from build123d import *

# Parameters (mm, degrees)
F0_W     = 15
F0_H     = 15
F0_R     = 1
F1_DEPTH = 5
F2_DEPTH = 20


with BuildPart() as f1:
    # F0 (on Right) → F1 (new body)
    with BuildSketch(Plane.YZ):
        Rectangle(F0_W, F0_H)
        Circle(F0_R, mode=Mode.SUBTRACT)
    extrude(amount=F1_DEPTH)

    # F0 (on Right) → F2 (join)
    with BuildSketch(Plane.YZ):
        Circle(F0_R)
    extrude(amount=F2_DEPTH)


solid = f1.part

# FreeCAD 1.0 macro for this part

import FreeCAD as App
import Part
import Sketcher
Q = App.Units.Quantity

doc = App.newDocument("Part")
body = doc.addObject("PartDesign::Body", "Body")

sketch1 = body.newObject("Sketcher::SketchObject", "Sketch")
sketch1.AttachmentSupport = (doc.getObject("YZ_Plane"), [""])
sketch1.MapMode = "FlatFace"
sketch1.addGeometry([
    Part.LineSegment(App.Vector(-7.5, 7.5, 0), App.Vector(-7.5, -7.5, 0)),
    Part.LineSegment(App.Vector(-7.5, -7.5, 0), App.Vector(7.5, -7.5, 0)),
    Part.LineSegment(App.Vector(7.5, -7.5, 0), App.Vector(7.5, 7.5, 0)),
    Part.LineSegment(App.Vector(7.5, 7.5, 0), App.Vector(-7.5, 7.5, 0)),
    Part.Circle(App.Vector(0, 0, 0), App.Vector(0, 0, 1), 1),
], False)
sketch1.addConstraint([
    Sketcher.Constraint("Coincident", 0, 2, 1, 1),
    Sketcher.Constraint("Coincident", 1, 2, 2, 1),
    Sketcher.Constraint("Coincident", 2, 2, 3, 1),
    Sketcher.Constraint("Coincident", 3, 2, 0, 1),
    Sketcher.Constraint("Vertical", 0),
    Sketcher.Constraint("Horizontal", 1),
    Sketcher.Constraint("Vertical", 2),
    Sketcher.Constraint("Horizontal", 3),
    Sketcher.Constraint("Coincident", 4, 3, -1, 1),
    Sketcher.Constraint("Symmetric", 0, 2, 2, 2, -1, 1),
    Sketcher.Constraint("Equal", 3, 0),
    Sketcher.Constraint("Diameter", 4, Q("2 mm")),
    Sketcher.Constraint("DistanceX", 1, 1, 1, 2, Q("15 mm")),
])
pad1 = body.newObject("PartDesign::Pad", "Pad")
pad1.Profile = sketch1
pad1.Length = 5

sketch2 = body.newObject("Sketcher::SketchObject", "Sketch001")
sketch2.AttachmentSupport = (doc.getObject("YZ_Plane"), [""])
sketch2.MapMode = "FlatFace"
sketch2.addGeometry(Part.Circle(App.Vector(0, 0, 0), App.Vector(0, 0, 1), 1), False)
sketch2.addConstraint([
    Sketcher.Constraint("Coincident", 0, 3, -1, 1),
    Sketcher.Constraint("Diameter", 0, Q("2 mm")),
])
pad2 = body.newObject("PartDesign::Pad", "Pad001")
pad2.Profile = sketch2
pad2.Length = 20

doc.recompute()
